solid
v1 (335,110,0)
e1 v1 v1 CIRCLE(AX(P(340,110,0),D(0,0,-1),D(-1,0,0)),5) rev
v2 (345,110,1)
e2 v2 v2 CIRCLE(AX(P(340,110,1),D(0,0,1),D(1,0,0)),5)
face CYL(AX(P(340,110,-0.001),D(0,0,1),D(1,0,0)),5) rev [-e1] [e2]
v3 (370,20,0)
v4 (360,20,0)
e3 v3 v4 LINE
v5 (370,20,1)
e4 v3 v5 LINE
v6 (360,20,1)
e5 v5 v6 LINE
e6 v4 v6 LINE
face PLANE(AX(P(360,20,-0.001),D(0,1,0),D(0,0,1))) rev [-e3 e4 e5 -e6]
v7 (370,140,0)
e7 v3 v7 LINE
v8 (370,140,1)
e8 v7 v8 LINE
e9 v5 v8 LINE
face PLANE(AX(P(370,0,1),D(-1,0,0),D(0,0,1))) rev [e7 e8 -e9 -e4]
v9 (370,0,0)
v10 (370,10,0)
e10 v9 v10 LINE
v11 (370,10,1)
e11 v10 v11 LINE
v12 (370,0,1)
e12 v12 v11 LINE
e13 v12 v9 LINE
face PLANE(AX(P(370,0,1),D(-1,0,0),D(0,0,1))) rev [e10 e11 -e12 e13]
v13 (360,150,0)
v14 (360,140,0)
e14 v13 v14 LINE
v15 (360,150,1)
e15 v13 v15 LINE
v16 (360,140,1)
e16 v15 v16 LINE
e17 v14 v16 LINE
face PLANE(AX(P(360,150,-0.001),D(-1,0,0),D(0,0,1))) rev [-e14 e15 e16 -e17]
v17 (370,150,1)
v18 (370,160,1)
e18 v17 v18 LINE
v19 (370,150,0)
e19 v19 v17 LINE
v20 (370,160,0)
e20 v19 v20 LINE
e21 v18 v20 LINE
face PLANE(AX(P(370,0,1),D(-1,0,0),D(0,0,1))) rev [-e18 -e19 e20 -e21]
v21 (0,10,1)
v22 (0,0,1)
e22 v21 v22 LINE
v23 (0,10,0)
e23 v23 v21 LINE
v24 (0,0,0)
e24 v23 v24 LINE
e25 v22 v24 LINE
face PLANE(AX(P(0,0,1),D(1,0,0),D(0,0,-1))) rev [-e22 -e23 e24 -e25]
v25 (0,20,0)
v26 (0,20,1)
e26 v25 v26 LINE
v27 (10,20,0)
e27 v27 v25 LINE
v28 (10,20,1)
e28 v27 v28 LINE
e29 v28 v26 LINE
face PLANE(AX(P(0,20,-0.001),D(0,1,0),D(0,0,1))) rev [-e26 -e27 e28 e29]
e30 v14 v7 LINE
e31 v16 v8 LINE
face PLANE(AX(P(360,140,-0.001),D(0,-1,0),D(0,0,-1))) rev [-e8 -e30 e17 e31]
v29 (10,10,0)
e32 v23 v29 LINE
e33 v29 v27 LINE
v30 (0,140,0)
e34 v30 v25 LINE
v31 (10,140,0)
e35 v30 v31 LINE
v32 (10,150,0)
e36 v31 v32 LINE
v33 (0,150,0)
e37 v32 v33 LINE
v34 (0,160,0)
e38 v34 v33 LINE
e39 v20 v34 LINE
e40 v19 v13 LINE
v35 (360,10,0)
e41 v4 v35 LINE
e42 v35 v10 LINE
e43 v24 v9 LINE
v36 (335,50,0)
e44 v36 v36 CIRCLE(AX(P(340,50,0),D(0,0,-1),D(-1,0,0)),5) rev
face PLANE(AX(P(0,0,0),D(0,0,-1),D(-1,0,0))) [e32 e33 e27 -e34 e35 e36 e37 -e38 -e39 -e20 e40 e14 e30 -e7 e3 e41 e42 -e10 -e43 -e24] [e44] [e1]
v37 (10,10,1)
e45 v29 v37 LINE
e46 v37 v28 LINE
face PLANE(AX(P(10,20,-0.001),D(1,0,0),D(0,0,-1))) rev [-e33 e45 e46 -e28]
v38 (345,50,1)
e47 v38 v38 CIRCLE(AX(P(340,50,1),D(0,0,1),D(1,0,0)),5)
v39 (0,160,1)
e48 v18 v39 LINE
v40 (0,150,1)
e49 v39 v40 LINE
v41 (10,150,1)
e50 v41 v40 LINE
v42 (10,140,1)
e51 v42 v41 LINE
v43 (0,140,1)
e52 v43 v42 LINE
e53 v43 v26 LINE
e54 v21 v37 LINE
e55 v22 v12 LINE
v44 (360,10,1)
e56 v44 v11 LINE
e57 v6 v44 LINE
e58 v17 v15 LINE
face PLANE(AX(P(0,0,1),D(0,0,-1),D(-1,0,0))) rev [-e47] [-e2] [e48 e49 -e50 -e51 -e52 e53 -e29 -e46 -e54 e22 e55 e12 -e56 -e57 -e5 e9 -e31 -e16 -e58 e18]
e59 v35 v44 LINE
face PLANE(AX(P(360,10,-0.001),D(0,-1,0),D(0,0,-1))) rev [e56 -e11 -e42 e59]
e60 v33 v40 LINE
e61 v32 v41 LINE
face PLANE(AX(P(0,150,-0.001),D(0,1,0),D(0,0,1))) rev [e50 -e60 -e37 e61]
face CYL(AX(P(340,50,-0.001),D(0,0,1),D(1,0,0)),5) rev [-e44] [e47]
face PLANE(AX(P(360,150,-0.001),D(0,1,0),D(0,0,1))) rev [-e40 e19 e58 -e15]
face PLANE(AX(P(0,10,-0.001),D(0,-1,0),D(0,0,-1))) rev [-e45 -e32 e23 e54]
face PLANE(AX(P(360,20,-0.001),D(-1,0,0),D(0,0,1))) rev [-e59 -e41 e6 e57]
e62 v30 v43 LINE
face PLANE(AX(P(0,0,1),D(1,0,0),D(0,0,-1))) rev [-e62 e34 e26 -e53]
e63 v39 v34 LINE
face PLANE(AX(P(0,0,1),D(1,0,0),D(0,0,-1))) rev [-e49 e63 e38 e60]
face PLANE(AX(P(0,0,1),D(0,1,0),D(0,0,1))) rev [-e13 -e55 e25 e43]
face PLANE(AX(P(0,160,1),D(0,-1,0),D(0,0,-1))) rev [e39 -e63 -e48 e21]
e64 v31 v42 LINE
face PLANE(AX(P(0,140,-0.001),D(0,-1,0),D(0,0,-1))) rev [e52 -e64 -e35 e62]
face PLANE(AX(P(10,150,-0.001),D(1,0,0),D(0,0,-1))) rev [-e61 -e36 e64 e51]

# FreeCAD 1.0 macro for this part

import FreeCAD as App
import Part
import Sketcher
Q = App.Units.Quantity


def add_polygon(sketch, points):
    """Adds a closed chain of lines whose ends are joined by coincident constraints."""
    first, n = sketch.GeometryCount, len(points)
    for a, b in zip(points, points[1:] + points[:1]):
        sketch.addGeometry(Part.LineSegment(App.Vector(*a, 0), App.Vector(*b, 0)), False)
    for i in range(n):
        sketch.addConstraint(Sketcher.Constraint("Coincident", first + i, 2, first + (i + 1) % n, 1))

doc = App.newDocument("Part")
body = doc.addObject("PartDesign::Body", "Body")

sketch1 = body.newObject("Sketcher::SketchObject", "Sketch")
sketch1.AttachmentSupport = (doc.getObject("XY_Plane"), [""])
sketch1.MapMode = "FlatFace"
add_polygon(sketch1, [(0, 160), (0, 0), (370, 0), (370, 160)])
sketch1.addConstraint([
    Sketcher.Constraint("Vertical", 0),
    Sketcher.Constraint("Horizontal", 1),
    Sketcher.Constraint("Vertical", 2),
    Sketcher.Constraint("Horizontal", 3),
    Sketcher.Constraint("Coincident", 0, 2, -1, 1),
    Sketcher.Constraint("DistanceX", 1, 1, 1, 2, Q("370 mm")),
    Sketcher.Constraint("DistanceY", 0, 2, 0, 1, Q("160 mm")),
])
pad1 = body.newObject("PartDesign::Pad", "Pad")
pad1.Profile = sketch1
pad1.Length = 1

sketch2 = body.newObject("Sketcher::SketchObject", "Sketch001")
sketch2.AttachmentSupport = (doc.getObject("XY_Plane"), [""])
sketch2.MapMode = "FlatFace"
sketch2.AttachmentOffset = App.Placement(App.Vector(0, 0, 1), App.Rotation())
add_polygon(sketch2, [(0, 150), (0, 140), (10, 140), (10, 150)])
sketch2.addConstraint([
    Sketcher.Constraint("Vertical", 0),
    Sketcher.Constraint("Horizontal", 1),
    Sketcher.Constraint("Vertical", 2),
    Sketcher.Constraint("Horizontal", 3),
    Sketcher.Constraint("PointOnObject", 0, 2, -2),
    Sketcher.Constraint("Equal", 3, 0),
    Sketcher.Constraint("DistanceX", 1, 1, 1, 2, Q("10 mm")),
    Sketcher.Constraint("DistanceY", -1, 1, 0, 2, Q("140 mm")),
])
pocket1 = body.newObject("PartDesign::Pocket", "Pocket")
pocket1.Profile = sketch2
pocket1.Type = "UpToFirst"

sketch3 = body.newObject("Sketcher::SketchObject", "Sketch002")
sketch3.AttachmentSupport = (doc.getObject("XY_Plane"), [""])
sketch3.MapMode = "FlatFace"
sketch3.AttachmentOffset = App.Placement(App.Vector(0, 0, 1), App.Rotation())
add_polygon(sketch3, [(360, 150), (360, 140), (370, 140), (370, 150)])
sketch3.addConstraint([
    Sketcher.Constraint("Vertical", 0),
    Sketcher.Constraint("Horizontal", 1),
    Sketcher.Constraint("Vertical", 2),
    Sketcher.Constraint("Horizontal", 3),
    Sketcher.Constraint("Equal", 3, 0),
    Sketcher.Constraint("DistanceX", 1, 1, 1, 2, Q("10 mm")),
    Sketcher.Constraint("DistanceX", -1, 1, 0, 2, Q("360 mm")),
    Sketcher.Constraint("DistanceY", -1, 1, 0, 2, Q("140 mm")),
])
pocket2 = body.newObject("PartDesign::Pocket", "Pocket001")
pocket2.Profile = sketch3
pocket2.Type = "UpToFirst"

sketch4 = body.newObject("Sketcher::SketchObject", "Sketch003")
sketch4.AttachmentSupport = (doc.getObject("XY_Plane"), [""])
sketch4.MapMode = "FlatFace"
sketch4.AttachmentOffset = App.Placement(App.Vector(0, 0, 1), App.Rotation())
add_polygon(sketch4, [(360, 20), (360, 10), (370, 10), (370, 20)])
sketch4.addConstraint([
    Sketcher.Constraint("Vertical", 0),
    Sketcher.Constraint("Horizontal", 1),
    Sketcher.Constraint("Vertical", 2),
    Sketcher.Constraint("Horizontal", 3),
    Sketcher.Constraint("Equal", 3, 0),
    Sketcher.Constraint("DistanceX", 1, 1, 1, 2, Q("10 mm")),
    Sketcher.Constraint("DistanceX", -1, 1, 0, 2, Q("360 mm")),
    Sketcher.Constraint("DistanceY", -1, 1, 0, 2, Q("10 mm")),
])
pocket3 = body.newObject("PartDesign::Pocket", "Pocket002")
pocket3.Profile = sketch4
pocket3.Type = "UpToFirst"

sketch5 = body.newObject("Sketcher::SketchObject", "Sketch004")
sketch5.AttachmentSupport = (doc.getObject("XY_Plane"), [""])
sketch5.MapMode = "FlatFace"
sketch5.AttachmentOffset = App.Placement(App.Vector(0, 0, 1), App.Rotation())
add_polygon(sketch5, [(0, 20), (0, 10), (10, 10), (10, 20)])
sketch5.addConstraint([
    Sketcher.Constraint("Vertical", 0),
    Sketcher.Constraint("Horizontal", 1),
    Sketcher.Constraint("Vertical", 2),
    Sketcher.Constraint("Horizontal", 3),
    Sketcher.Constraint("PointOnObject", 0, 2, -2),
    Sketcher.Constraint("Equal", 3, 0),
    Sketcher.Constraint("DistanceX", 1, 1, 1, 2, Q("10 mm")),
    Sketcher.Constraint("DistanceY", -1, 1, 0, 2, Q("10 mm")),
])
pocket4 = body.newObject("PartDesign::Pocket", "Pocket003")
pocket4.Profile = sketch5
pocket4.Type = "UpToFirst"

sketch6 = body.newObject("Sketcher::SketchObject", "Sketch005")
sketch6.AttachmentSupport = (doc.getObject("XY_Plane"), [""])
sketch6.MapMode = "FlatFace"
sketch6.AttachmentOffset = App.Placement(App.Vector(0, 0, 1), App.Rotation())
sketch6.addGeometry(Part.Circle(App.Vector(340, 110, 0), App.Vector(0, 0, 1), 5), False)
sketch6.addConstraint([
    Sketcher.Constraint("Diameter", 0, Q("10 mm")),
    Sketcher.Constraint("DistanceX", -1, 1, 0, 3, Q("340 mm")),
    Sketcher.Constraint("DistanceY", -1, 1, 0, 3, Q("110 mm")),
])
pocket5 = body.newObject("PartDesign::Pocket", "Pocket004")
pocket5.Profile = sketch6
pocket5.Type = "UpToFirst"

sketch7 = body.newObject("Sketcher::SketchObject", "Sketch006")
sketch7.AttachmentSupport = (doc.getObject("XY_Plane"), [""])
sketch7.MapMode = "FlatFace"
sketch7.AttachmentOffset = App.Placement(App.Vector(0, 0, 1), App.Rotation())
sketch7.addGeometry(Part.Circle(App.Vector(340, 50, 0), App.Vector(0, 0, 1), 5), False)
sketch7.addConstraint([
    Sketcher.Constraint("Diameter", 0, Q("10 mm")),
    Sketcher.Constraint("DistanceX", -1, 1, 0, 3, Q("340 mm")),
    Sketcher.Constraint("DistanceY", -1, 1, 0, 3, Q("50 mm")),
])
pocket6 = body.newObject("PartDesign::Pocket", "Pocket005")
pocket6.Profile = sketch7
pocket6.Type = "UpToFirst"

doc.recompute()
